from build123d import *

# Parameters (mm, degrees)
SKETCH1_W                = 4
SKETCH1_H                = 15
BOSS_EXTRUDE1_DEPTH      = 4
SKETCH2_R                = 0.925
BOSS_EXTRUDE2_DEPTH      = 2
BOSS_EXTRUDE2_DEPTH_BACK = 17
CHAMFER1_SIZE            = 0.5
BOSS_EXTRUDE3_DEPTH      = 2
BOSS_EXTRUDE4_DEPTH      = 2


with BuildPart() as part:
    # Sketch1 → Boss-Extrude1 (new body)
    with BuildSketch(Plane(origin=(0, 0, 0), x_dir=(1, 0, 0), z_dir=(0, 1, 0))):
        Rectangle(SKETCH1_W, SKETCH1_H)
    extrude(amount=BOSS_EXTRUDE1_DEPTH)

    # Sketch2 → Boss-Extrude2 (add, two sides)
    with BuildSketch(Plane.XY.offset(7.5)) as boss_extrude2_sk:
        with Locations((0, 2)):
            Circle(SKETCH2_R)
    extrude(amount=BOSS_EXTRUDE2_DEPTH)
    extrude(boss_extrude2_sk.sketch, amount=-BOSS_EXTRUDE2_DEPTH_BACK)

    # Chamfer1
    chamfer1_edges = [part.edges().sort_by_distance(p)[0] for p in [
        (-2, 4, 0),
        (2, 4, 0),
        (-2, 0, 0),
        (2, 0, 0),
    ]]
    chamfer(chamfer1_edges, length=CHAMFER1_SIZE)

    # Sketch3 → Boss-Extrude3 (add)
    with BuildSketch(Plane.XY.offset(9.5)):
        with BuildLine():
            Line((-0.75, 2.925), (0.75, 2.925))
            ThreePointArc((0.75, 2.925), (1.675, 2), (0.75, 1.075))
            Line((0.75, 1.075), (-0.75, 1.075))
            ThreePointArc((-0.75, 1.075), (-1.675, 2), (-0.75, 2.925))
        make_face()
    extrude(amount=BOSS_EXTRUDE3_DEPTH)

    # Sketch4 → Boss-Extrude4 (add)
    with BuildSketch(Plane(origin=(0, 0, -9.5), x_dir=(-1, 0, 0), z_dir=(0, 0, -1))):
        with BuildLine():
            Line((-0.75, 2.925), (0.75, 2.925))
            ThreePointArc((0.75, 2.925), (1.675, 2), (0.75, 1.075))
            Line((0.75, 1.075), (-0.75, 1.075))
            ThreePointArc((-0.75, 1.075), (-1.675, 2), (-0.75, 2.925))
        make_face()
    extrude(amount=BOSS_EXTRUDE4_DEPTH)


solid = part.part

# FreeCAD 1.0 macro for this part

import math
import FreeCAD as App
import Part
import Sketcher
from FreeCAD import Vector
Q = App.Units.Quantity


def edges_at(feature, points):
    """Names of the edges that pass closest to the given points."""
    edges = feature.Shape.Edges
    near = lambda p: min(range(len(edges)), key=lambda i: edges[i].distToShape(Part.Vertex(*p))[0])
    return sorted({f"Edge{near(p) + 1}" for p in points})

doc = App.newDocument("Part")
params = doc.addObject("Spreadsheet::Sheet", "Params")
for row, (alias, value) in enumerate([
    ("sketch1_width", "4 mm"),
    ("sketch1_height", "15 mm"),
    ("pad1_length", "4 mm"),
    ("sketch2_diameter", "1.85 mm"),
    ("pad2_length", "2 mm"),
    ("pad2_length2", "17 mm"),
    ("chamfer_size", "0.5 mm"),
    ("sketch3_width", "1.5 mm"),
    ("pad3_length", "2 mm"),
    ("sketch4_width", "1.5 mm"),
    ("pad4_length", "2 mm"),
], start=1):
    params.set(f"A{row}", alias)
    params.set(f"B{row}", "=" + value)
    params.setAlias(f"B{row}", alias)

body = doc.addObject("PartDesign::Body", "Body")

sketch1 = body.newObject("Sketcher::SketchObject", "Sketch")
sketch1.AttachmentSupport = (doc.getObject("XZ_Plane"), [""])
sketch1.MapMode = "FlatFace"
sketch1.addGeometry([
    Part.LineSegment(Vector(-2, -7.5, 0), Vector(-2, 7.5, 0)),
    Part.LineSegment(Vector(-2, 7.5, 0), Vector(2, 7.5, 0)),
    Part.LineSegment(Vector(2, 7.5, 0), Vector(2, -7.5, 0)),
    Part.LineSegment(Vector(2, -7.5, 0), Vector(-2, -7.5, 0)),
], False)
sketch1.addConstraint([
    Sketcher.Constraint("Coincident", 0, 2, 1, 1),
    Sketcher.Constraint("Coincident", 1, 2, 2, 1),
    Sketcher.Constraint("Coincident", 2, 2, 3, 1),
    Sketcher.Constraint("Coincident", 3, 2, 0, 1),
    Sketcher.Constraint("Vertical", 0),
    Sketcher.Constraint("Horizontal", 1),
    Sketcher.Constraint("Vertical", 2),
    Sketcher.Constraint("Horizontal", 3),
    Sketcher.Constraint("Symmetric", 0, 2, 2, 2, -1, 1),
    Sketcher.Constraint("DistanceX", 1, 1, 1, 2, Q("4 mm")),
    Sketcher.Constraint("DistanceY", 0, 1, 0, 2, Q("15 mm")),
])
sketch1.setExpression("Constraints[9]", "Params.sketch1_width")
sketch1.setExpression("Constraints[10]", "Params.sketch1_height")
pad1 = body.newObject("PartDesign::Pad", "Pad")
pad1.Profile = sketch1
pad1.setExpression("Length", "Params.pad1_length")
pad1.Reversed = True

sketch2 = body.newObject("Sketcher::SketchObject", "Sketch001")
sketch2.AttachmentSupport = (doc.getObject("XY_Plane"), [""])
sketch2.MapMode = "FlatFace"
sketch2.AttachmentOffset = App.Placement(Vector(0, 0, 7.5), App.Rotation())
sketch2.addGeometry(Part.Circle(Vector(0, 2, 0), Vector(0, 0, 1), 0.9), False)
sketch2.addConstraint([
    Sketcher.Constraint("PointOnObject", 0, 3, -2),
    Sketcher.Constraint("Diameter", 0, Q("1.85 mm")),
    Sketcher.Constraint("DistanceY", -1, 1, 0, 3, Q("2 mm")),
])
sketch2.setExpression("Constraints[1]", "Params.sketch2_diameter")
pad2 = body.newObject("PartDesign::Pad", "Pad001")
pad2.Profile = sketch2
pad2.Type = "TwoLengths"
pad2.setExpression("Length", "Params.pad2_length")
pad2.setExpression("Length2", "Params.pad2_length2")
doc.recompute()

chamfer = body.newObject("PartDesign::Chamfer", "Chamfer")
chamfer.Base = (pad2, edges_at(pad2, [
    (-2, 4, 0),
    (2, 4, 0),
    (-2, 0, 0),
    (2, 0, 0),
]))
chamfer.setExpression("Size", "Params.chamfer_size")

sketch3 = body.newObject("Sketcher::SketchObject", "Sketch002")
sketch3.AttachmentSupport = (doc.getObject("XY_Plane"), [""])
sketch3.MapMode = "FlatFace"
sketch3.AttachmentOffset = App.Placement(Vector(0, 0, 9.5), App.Rotation())
sketch3.addGeometry([
    Part.LineSegment(Vector(0.8, 2.9, 0), Vector(-0.8, 2.9, 0)),
    Part.ArcOfCircle(Part.Circle(Vector(-0.8, 2, 0), Vector(0, 0, 1), 0.9), math.radians(90), math.radians(270)),
    Part.LineSegment(Vector(-0.8, 1.1, 0), Vector(0.8, 1.1, 0)),
    Part.ArcOfCircle(Part.Circle(Vector(0.8, 2, 0), Vector(0, 0, 1), 0.9), math.radians(-90), math.radians(90)),
], False)
sketch3.addConstraint([
    Sketcher.Constraint("Tangent", 0, 2, 1, 1),
    Sketcher.Constraint("Tangent", 1, 2, 2, 1),
    Sketcher.Constraint("Tangent", 2, 2, 3, 1),
    Sketcher.Constraint("Tangent", 3, 2, 0, 1),
    Sketcher.Constraint("Horizontal", 0),
    Sketcher.Constraint("Horizontal", 2),
    Sketcher.Constraint("DistanceX", 0, 2, 0, 1, Q("1.5 mm")),
    Sketcher.Constraint("DistanceY", -1, 1, 1, 3, Q("2 mm")),
    Sketcher.Constraint("Radius", 1, Q("0.925 mm")),
    Sketcher.Constraint("DistanceX", 1, 3, -1, 1, Q("0.75 mm")),
])
sketch3.setExpression("Constraints[6]", "Params.sketch3_width")
pad3 = body.newObject("PartDesign::Pad", "Pad002")
pad3.Profile = sketch3
pad3.setExpression("Length", "Params.pad3_length")

sketch4 = body.newObject("Sketcher::SketchObject", "Sketch003")
sketch4.AttachmentSupport = (doc.getObject("XY_Plane"), [""])
sketch4.MapMode = "FlatFace"
sketch4.AttachmentOffset = App.Placement(Vector(0, 0, -9.5), App.Rotation())
sketch4.addGeometry([
    Part.LineSegment(Vector(-0.8, 2.9, 0), Vector(0.8, 2.9, 0)),
    Part.ArcOfCircle(Part.Circle(Vector(0.8, 2, 0), Vector(0, 0, 1), 0.9), math.radians(-90), math.radians(90)),
    Part.LineSegment(Vector(0.8, 1.1, 0), Vector(-0.8, 1.1, 0)),
    Part.ArcOfCircle(Part.Circle(Vector(-0.8, 2, 0), Vector(0, 0, 1), 0.9), math.radians(90), math.radians(270)),
], False)
sketch4.addConstraint([
    Sketcher.Constraint("Tangent", 0, 2, 1, 2),
    Sketcher.Constraint("Tangent", 1, 1, 2, 1),
    Sketcher.Constraint("Tangent", 2, 2, 3, 2),
    Sketcher.Constraint("Tangent", 3, 1, 0, 1),
    Sketcher.Constraint("Horizontal", 0),
    Sketcher.Constraint("Horizontal", 2),
    Sketcher.Constraint("DistanceX", 0, 1, 0, 2, Q("1.5 mm")),
    Sketcher.Constraint("DistanceY", -1, 1, 1, 3, Q("2 mm")),
    Sketcher.Constraint("Radius", 1, Q("0.925 mm")),
    Sketcher.Constraint("DistanceX", -1, 1, 1, 3, Q("0.75 mm")),
])
sketch4.setExpression("Constraints[6]", "Params.sketch4_width")
pad4 = body.newObject("PartDesign::Pad", "Pad003")
pad4.Profile = sketch4
pad4.setExpression("Length", "Params.pad4_length")
pad4.Reversed = True

doc.recompute()
